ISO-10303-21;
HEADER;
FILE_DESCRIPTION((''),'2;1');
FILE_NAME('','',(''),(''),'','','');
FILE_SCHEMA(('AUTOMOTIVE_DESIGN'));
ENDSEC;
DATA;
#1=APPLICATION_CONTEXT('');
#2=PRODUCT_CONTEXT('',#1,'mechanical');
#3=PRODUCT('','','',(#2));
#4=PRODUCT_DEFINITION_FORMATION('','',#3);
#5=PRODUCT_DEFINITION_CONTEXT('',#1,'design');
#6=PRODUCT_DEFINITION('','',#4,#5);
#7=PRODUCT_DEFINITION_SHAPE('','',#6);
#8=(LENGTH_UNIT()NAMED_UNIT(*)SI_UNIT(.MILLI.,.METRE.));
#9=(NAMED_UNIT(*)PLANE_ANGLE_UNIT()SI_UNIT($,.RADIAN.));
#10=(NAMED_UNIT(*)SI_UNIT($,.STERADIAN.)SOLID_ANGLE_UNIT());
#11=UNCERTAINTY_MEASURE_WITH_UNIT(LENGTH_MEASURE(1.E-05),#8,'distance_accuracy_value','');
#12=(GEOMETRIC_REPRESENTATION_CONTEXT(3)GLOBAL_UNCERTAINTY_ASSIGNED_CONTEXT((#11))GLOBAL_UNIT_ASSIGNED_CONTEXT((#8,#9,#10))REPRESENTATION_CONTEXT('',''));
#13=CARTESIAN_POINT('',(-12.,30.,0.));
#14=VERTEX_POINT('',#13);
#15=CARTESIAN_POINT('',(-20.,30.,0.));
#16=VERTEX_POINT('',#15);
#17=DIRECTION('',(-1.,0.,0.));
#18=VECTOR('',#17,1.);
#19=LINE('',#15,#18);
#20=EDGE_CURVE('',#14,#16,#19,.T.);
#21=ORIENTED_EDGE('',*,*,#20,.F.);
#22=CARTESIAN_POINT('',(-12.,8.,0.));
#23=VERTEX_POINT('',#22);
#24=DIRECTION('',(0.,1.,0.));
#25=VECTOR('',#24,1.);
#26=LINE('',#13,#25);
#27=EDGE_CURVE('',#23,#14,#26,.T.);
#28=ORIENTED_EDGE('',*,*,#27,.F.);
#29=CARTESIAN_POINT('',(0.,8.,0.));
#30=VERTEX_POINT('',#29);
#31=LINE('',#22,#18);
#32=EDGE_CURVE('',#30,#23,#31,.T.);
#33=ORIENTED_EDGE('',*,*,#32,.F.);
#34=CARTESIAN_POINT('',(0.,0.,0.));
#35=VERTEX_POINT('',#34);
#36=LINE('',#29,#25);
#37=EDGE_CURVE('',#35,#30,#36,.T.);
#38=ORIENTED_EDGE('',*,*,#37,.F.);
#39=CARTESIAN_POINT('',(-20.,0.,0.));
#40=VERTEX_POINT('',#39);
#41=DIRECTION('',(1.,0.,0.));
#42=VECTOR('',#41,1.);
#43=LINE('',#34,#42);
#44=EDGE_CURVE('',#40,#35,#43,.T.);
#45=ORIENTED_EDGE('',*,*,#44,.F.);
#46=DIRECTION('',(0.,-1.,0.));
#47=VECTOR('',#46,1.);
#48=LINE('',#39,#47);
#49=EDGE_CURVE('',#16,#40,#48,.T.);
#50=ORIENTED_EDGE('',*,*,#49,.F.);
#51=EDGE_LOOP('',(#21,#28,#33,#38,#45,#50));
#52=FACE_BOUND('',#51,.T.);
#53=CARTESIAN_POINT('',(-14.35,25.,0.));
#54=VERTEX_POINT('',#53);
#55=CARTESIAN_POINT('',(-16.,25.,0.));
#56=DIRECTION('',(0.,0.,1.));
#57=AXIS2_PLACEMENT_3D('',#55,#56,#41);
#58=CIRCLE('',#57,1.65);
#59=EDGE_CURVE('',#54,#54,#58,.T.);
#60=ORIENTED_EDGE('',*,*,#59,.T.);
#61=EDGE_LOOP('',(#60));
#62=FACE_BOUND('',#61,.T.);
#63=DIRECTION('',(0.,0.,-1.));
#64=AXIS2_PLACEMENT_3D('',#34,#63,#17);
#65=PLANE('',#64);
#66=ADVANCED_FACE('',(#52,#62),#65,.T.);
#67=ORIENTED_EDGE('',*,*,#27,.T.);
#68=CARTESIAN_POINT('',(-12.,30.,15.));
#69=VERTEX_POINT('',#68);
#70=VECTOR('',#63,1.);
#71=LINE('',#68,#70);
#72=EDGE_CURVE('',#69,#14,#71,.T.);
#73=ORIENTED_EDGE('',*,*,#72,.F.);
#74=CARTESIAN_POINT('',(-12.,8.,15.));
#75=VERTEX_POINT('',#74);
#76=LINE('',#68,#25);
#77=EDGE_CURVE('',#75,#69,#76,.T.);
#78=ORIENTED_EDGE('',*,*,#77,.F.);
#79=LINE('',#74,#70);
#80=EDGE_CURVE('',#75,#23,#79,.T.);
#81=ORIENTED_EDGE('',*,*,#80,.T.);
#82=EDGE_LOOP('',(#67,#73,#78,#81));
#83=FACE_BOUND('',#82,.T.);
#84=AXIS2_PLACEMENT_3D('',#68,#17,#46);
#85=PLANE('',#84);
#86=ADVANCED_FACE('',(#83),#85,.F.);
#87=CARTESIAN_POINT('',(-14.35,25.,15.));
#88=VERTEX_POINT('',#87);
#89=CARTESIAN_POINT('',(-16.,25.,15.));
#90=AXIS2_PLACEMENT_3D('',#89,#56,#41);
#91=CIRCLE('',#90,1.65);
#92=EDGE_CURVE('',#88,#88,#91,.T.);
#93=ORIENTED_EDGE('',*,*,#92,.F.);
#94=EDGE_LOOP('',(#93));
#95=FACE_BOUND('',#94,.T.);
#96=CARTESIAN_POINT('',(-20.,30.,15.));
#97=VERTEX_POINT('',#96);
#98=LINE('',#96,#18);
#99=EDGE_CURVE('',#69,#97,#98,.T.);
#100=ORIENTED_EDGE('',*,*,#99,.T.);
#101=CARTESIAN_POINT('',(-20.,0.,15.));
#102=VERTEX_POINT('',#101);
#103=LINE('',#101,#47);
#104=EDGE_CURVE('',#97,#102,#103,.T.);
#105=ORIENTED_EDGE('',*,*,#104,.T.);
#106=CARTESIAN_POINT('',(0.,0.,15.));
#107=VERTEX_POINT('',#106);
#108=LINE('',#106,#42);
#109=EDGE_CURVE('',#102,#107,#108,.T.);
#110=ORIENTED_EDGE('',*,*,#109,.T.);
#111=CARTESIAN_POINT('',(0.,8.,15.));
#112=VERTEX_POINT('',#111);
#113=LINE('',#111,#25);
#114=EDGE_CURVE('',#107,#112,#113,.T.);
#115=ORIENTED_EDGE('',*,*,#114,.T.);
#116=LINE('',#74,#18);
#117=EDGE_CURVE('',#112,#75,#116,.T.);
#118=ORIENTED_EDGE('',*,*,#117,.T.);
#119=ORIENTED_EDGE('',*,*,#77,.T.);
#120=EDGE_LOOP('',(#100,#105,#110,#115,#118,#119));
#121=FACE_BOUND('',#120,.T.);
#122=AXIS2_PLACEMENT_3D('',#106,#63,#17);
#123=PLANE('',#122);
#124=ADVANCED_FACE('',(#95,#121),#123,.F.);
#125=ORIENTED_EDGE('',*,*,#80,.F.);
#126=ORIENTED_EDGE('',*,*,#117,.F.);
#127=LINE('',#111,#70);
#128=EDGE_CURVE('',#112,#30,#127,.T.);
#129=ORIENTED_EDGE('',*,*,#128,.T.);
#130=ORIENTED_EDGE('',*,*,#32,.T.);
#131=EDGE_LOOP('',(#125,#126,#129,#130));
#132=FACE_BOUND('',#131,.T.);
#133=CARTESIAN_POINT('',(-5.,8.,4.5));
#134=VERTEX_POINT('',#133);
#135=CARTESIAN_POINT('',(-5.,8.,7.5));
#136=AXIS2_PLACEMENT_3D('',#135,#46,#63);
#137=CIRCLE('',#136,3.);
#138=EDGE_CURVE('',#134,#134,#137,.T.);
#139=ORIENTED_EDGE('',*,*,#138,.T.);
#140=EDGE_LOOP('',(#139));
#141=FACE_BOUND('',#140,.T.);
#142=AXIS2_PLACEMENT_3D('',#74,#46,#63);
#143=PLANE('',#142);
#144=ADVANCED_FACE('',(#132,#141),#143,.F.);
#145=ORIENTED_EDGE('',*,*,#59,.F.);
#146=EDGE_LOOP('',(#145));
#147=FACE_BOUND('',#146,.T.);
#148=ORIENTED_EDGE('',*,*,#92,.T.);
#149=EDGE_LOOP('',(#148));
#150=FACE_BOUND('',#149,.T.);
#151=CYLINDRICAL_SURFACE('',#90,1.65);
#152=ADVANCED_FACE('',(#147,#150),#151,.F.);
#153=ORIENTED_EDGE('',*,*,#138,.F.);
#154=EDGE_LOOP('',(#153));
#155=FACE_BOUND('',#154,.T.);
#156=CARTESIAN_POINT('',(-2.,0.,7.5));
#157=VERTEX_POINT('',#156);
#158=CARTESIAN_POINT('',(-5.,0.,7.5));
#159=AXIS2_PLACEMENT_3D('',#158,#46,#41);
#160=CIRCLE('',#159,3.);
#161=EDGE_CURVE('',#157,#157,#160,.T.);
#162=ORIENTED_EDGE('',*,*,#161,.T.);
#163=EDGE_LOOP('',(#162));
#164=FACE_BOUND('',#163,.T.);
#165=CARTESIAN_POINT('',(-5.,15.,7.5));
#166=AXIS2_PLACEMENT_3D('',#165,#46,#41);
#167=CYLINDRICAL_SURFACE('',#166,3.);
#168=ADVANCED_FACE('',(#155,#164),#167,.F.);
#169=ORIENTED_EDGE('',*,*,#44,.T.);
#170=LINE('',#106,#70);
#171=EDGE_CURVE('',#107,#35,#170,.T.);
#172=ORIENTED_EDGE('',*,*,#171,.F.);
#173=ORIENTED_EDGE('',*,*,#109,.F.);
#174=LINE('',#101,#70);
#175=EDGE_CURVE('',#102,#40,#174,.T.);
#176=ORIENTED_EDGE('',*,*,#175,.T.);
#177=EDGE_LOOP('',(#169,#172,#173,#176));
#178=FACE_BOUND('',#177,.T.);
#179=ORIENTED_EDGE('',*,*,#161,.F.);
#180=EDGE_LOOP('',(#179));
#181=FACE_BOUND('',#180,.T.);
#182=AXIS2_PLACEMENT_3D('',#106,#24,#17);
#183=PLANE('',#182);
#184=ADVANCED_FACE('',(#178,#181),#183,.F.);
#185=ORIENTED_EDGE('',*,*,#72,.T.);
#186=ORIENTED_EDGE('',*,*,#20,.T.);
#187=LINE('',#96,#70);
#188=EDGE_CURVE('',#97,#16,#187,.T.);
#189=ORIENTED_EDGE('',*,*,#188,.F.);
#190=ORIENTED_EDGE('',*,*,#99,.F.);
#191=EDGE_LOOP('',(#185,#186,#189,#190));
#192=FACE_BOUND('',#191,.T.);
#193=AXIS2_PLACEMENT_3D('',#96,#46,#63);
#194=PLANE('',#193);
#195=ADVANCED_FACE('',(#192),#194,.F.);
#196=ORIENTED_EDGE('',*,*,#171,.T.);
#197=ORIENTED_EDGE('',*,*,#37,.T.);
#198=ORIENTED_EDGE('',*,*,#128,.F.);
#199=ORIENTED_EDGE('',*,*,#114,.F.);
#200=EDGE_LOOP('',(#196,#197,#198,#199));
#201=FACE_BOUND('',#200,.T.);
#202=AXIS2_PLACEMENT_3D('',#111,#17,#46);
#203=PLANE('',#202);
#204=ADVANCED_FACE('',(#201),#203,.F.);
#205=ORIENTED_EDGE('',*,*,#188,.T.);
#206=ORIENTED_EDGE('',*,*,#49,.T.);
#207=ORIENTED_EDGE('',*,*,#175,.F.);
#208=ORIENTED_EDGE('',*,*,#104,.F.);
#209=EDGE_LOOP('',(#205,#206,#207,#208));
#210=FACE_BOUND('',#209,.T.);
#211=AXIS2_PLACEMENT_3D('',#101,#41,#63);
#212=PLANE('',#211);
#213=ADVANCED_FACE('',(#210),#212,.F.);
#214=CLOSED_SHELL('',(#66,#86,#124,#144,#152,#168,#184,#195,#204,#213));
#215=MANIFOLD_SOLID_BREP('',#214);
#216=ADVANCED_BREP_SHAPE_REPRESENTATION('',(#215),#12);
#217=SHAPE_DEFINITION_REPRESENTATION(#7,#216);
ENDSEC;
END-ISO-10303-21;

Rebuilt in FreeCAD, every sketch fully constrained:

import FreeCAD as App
import Part
import Sketcher
from FreeCAD import Vector
Q = App.Units.Quantity

doc = App.newDocument("Part")
params = doc.addObject("Spreadsheet::Sheet", "Params")
for row, (alias, value) in enumerate([
    ("sketch1_width", "20 mm"),
    ("sketch1_width2", "12 mm"),
    ("sketch1_height", "22 mm"),
    ("pad1_length", "15 mm"),
    ("sketch2_diameter", "6 mm"),
    ("pocket1_length", "15 mm"),
    ("sketch3_diameter", "3.3 mm"),
    ("hole_diameter", "3.3 mm"),
], start=1):
    params.set(f"A{row}", alias)
    params.set(f"B{row}", "=" + value)
    params.setAlias(f"B{row}", alias)

body = doc.addObject("PartDesign::Body", "Body")

sketch1 = body.newObject("Sketcher::SketchObject", "Sketch")
sketch1.AttachmentSupport = (doc.getObject("XY_Plane"), [""])
sketch1.MapMode = "FlatFace"
sketch1.addGeometry(Part.LineSegment(Vector(-20, 0, 0), Vector(0, 0, 0)), False)
sketch1.addGeometry(Part.LineSegment(Vector(0, 0, 0), Vector(0, 8, 0)), False)
sketch1.addGeometry(Part.LineSegment(Vector(0, 8, 0), Vector(-12, 8, 0)), False)
sketch1.addGeometry(Part.LineSegment(Vector(-12, 8, 0), Vector(-12, 30, 0)), False)
sketch1.addGeometry(Part.LineSegment(Vector(-12, 30, 0), Vector(-20, 30, 0)), False)
sketch1.addGeometry(Part.LineSegment(Vector(-20, 30, 0), Vector(-20, 0, 0)), False)
sketch1.addConstraint(Sketcher.Constraint("Coincident", 0, 2, 1, 1))
sketch1.addConstraint(Sketcher.Constraint("Coincident", 1, 2, 2, 1))
sketch1.addConstraint(Sketcher.Constraint("Coincident", 2, 2, 3, 1))
sketch1.addConstraint(Sketcher.Constraint("Coincident", 3, 2, 4, 1))
sketch1.addConstraint(Sketcher.Constraint("Coincident", 4, 2, 5, 1))
sketch1.addConstraint(Sketcher.Constraint("Coincident", 5, 2, 0, 1))
sketch1.addConstraint(Sketcher.Constraint("Horizontal", 0))
sketch1.addConstraint(Sketcher.Constraint("Vertical", 1))
sketch1.addConstraint(Sketcher.Constraint("Horizontal", 2))
sketch1.addConstraint(Sketcher.Constraint("Vertical", 3))
sketch1.addConstraint(Sketcher.Constraint("Horizontal", 4))
sketch1.addConstraint(Sketcher.Constraint("Vertical", 5))
sketch1.addConstraint(Sketcher.Constraint("Coincident", 0, 2, -1, 1))
sketch1.addConstraint(Sketcher.Constraint("Equal", 4, 1))
sketch1.addConstraint(Sketcher.Constraint("DistanceX", 0, 1, 0, 2, Q("20 mm")))
sketch1.addConstraint(Sketcher.Constraint("DistanceX", 2, 2, 2, 1, Q("12 mm")))
sketch1.addConstraint(Sketcher.Constraint("DistanceY", 3, 1, 3, 2, Q("22 mm")))
sketch1.setExpression("Constraints[14]", "Params.sketch1_width")
sketch1.setExpression("Constraints[15]", "Params.sketch1_width2")
sketch1.setExpression("Constraints[16]", "Params.sketch1_height")
pad1 = body.newObject("PartDesign::Pad", "Pad")
pad1.Profile = sketch1
pad1.setExpression("Length", "Params.pad1_length")

sketch2 = body.newObject("Sketcher::SketchObject", "Sketch001")
sketch2.AttachmentSupport = (doc.getObject("XZ_Plane"), [""])
sketch2.MapMode = "FlatFace"
sketch2.addGeometry(Part.Circle(Vector(-5, 7.5, 0), Vector(0, 0, 1), 3), False)
sketch2.addConstraint(Sketcher.Constraint("Diameter", 0, Q("6 mm")))
sketch2.addConstraint(Sketcher.Constraint("DistanceX", 0, 3, -1, 1, Q("5 mm")))
sketch2.addConstraint(Sketcher.Constraint("DistanceY", -1, 1, 0, 3, Q("7.5 mm")))
sketch2.setExpression("Constraints[0]", "Params.sketch2_diameter")
pocket1 = body.newObject("PartDesign::Pocket", "Pocket")
pocket1.Profile = sketch2
pocket1.setExpression("Length", "Params.pocket1_length")

sketch3 = body.newObject("Sketcher::SketchObject", "Sketch002")
sketch3.AttachmentSupport = (doc.getObject("XY_Plane"), [""])
sketch3.MapMode = "FlatFace"
sketch3.AttachmentOffset = App.Placement(Vector(0, 0, 15), App.Rotation())
sketch3.addGeometry(Part.Circle(Vector(-16, 25, 0), Vector(0, 0, 1), 1.6), False)
sketch3.addConstraint(Sketcher.Constraint("Diameter", 0, Q("3.3 mm")))
sketch3.addConstraint(Sketcher.Constraint("DistanceX", 0, 3, -1, 1, Q("16 mm")))
sketch3.addConstraint(Sketcher.Constraint("DistanceY", -1, 1, 0, 3, Q("25 mm")))
sketch3.setExpression("Constraints[0]", "Params.sketch3_diameter")
doc.recompute()
hole = body.newObject("PartDesign::Hole", "Hole")
hole.Profile = sketch3
hole.ThreadType = "None"
hole.setExpression("Diameter", "Params.hole_diameter")
hole.DepthType = "ThroughAll"

doc.recompute()
